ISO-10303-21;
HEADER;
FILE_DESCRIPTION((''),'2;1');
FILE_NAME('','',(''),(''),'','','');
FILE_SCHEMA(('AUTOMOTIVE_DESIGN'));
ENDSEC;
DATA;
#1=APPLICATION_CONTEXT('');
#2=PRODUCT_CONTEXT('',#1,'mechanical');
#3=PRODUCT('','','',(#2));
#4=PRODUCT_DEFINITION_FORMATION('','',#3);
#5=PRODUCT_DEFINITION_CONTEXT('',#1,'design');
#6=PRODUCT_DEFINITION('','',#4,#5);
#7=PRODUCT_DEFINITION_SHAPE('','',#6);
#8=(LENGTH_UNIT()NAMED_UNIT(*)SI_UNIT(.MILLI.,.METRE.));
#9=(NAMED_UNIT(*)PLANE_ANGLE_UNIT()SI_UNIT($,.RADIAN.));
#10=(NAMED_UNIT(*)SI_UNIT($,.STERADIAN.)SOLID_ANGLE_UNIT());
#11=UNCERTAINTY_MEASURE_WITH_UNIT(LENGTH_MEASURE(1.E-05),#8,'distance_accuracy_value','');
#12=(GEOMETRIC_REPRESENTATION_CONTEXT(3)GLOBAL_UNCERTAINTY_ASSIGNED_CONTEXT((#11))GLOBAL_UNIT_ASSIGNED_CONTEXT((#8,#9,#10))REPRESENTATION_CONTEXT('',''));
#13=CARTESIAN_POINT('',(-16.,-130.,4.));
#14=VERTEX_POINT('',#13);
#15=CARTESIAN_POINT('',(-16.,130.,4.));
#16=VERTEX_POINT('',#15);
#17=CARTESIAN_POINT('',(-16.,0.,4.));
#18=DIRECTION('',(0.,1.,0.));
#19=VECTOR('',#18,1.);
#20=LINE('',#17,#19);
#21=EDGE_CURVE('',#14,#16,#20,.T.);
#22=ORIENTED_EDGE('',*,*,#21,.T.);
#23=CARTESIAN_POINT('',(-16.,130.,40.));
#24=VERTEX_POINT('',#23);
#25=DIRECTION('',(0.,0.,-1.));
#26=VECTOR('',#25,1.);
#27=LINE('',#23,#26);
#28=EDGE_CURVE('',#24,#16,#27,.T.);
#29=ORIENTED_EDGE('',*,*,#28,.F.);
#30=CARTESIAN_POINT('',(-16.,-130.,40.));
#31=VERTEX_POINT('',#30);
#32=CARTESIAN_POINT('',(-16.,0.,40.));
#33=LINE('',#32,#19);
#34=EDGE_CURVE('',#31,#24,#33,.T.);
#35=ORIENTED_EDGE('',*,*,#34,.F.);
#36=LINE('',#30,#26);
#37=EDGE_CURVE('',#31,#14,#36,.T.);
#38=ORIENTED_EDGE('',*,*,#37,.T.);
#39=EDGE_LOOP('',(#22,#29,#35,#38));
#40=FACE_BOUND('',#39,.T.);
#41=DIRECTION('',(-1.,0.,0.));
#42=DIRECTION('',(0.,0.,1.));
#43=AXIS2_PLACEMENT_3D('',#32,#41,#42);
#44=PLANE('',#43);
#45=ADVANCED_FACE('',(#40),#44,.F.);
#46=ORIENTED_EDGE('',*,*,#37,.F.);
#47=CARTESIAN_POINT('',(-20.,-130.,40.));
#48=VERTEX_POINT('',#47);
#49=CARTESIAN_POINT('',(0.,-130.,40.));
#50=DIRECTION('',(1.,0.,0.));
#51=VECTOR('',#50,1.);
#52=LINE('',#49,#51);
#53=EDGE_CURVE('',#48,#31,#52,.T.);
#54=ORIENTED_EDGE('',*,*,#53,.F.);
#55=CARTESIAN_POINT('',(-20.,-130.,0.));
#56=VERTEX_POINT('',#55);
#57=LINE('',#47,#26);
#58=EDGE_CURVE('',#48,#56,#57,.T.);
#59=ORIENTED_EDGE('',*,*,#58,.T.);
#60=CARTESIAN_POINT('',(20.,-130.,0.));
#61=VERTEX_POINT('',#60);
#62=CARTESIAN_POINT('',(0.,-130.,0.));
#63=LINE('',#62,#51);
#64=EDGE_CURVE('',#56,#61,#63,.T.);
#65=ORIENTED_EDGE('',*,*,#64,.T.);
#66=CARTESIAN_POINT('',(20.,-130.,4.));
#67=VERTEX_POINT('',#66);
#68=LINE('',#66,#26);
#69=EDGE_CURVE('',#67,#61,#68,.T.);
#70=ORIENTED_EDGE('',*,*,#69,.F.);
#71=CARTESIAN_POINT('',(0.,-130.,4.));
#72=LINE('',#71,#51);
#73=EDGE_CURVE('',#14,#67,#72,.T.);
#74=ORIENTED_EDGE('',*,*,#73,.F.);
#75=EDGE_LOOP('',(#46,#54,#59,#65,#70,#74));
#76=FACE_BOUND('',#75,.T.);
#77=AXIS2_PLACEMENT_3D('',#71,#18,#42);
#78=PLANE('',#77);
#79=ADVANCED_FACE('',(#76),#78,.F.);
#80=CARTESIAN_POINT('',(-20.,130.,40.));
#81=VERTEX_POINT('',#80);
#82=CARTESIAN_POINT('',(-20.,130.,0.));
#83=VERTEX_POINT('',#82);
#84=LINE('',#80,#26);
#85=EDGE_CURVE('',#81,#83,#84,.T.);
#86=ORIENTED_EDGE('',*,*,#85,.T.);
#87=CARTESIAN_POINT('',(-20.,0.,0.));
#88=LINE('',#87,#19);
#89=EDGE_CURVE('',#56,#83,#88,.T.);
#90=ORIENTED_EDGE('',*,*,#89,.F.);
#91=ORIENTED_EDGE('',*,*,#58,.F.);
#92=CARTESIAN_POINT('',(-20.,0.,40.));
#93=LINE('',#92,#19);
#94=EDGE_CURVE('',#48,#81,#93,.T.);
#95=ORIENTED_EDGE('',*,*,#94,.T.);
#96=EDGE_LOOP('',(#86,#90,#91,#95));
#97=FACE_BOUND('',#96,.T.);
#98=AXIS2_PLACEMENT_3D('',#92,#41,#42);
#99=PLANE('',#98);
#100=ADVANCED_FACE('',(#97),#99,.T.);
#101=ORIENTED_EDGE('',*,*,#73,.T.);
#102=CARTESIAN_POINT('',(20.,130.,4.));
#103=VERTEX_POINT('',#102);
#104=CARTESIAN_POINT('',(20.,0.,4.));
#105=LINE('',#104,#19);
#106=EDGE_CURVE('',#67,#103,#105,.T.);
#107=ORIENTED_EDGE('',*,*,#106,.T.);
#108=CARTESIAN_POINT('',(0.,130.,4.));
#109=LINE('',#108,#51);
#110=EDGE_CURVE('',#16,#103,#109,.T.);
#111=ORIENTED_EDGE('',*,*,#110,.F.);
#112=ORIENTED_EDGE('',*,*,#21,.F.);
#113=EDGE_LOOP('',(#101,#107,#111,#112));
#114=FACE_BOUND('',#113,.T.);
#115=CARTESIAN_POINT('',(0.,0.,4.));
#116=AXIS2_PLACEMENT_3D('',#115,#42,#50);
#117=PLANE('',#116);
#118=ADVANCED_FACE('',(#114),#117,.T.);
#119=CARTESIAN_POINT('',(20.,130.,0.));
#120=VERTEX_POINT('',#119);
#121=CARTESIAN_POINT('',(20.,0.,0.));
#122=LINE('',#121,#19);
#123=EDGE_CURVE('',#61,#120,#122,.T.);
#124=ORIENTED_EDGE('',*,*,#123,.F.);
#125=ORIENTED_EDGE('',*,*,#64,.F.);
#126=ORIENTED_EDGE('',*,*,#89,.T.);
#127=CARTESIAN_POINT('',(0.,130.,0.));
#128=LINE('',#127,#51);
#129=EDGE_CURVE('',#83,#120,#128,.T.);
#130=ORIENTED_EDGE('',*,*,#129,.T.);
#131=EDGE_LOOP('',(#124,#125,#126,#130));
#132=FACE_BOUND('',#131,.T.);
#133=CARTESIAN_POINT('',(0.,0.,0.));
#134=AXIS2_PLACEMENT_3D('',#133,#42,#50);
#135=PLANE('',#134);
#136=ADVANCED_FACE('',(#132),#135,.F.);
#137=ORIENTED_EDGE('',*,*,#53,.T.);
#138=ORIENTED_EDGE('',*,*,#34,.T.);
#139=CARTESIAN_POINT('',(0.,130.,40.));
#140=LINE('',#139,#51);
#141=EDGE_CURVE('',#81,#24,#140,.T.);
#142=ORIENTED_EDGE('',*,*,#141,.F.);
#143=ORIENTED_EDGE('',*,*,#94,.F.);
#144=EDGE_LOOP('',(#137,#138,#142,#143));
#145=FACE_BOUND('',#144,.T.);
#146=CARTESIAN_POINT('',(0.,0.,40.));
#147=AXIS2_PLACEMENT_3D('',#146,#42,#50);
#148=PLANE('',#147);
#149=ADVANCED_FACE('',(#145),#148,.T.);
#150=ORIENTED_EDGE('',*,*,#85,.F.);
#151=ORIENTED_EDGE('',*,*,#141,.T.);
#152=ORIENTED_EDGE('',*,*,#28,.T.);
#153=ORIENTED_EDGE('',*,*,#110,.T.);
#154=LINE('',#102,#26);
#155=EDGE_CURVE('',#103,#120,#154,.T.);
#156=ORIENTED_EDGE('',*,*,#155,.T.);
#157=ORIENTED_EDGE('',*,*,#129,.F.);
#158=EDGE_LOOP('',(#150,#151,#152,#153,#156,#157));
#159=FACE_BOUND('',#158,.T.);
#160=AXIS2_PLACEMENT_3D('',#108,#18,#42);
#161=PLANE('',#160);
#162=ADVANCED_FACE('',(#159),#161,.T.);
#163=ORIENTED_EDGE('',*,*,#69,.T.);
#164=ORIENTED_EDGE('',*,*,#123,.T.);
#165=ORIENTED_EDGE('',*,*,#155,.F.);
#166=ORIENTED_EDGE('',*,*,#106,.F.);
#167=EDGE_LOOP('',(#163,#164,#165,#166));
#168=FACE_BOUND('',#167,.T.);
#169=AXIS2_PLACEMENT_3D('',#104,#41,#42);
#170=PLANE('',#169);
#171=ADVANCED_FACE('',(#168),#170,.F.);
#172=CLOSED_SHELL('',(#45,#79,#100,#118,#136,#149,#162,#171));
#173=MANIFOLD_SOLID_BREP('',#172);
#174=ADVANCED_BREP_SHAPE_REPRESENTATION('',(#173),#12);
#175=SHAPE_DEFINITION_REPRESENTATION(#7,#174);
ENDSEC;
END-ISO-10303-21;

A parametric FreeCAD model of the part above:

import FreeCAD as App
import Part
import Sketcher
from FreeCAD import Vector
Q = App.Units.Quantity


def add_polygon(sketch, points):
    """Adds a closed chain of lines whose ends are joined by coincident constraints."""
    first, n = sketch.GeometryCount, len(points)
    for a, b in zip(points, points[1:] + points[:1]):
        sketch.addGeometry(Part.LineSegment(App.Vector(*a, 0), App.Vector(*b, 0)), False)
    for i in range(n):
        sketch.addConstraint(Sketcher.Constraint("Coincident", first + i, 2, first + (i + 1) % n, 1))

doc = App.newDocument("Part")
body = doc.addObject("PartDesign::Body", "Body")

# Sketch on XY plane
sketch1 = doc.addObject("Sketcher::SketchObject", "Sketch")
body.addObject(sketch1)
sketch1.AttachmentSupport = (doc.XY_Plane, [""])
sketch1.MapMode = "FlatFace"
add_polygon(sketch1, [(-16, 130), (-16, -130), (20, -130), (20, 130)])  # lines 0-3
sketch1.addConstraint(Sketcher.Constraint("Vertical", 0))
sketch1.addConstraint(Sketcher.Constraint("Horizontal", 1))
sketch1.addConstraint(Sketcher.Constraint("Vertical", 2))
sketch1.addConstraint(Sketcher.Constraint("Horizontal", 3))
sketch1.addConstraint(Sketcher.Constraint("DistanceX", 1, 1, 1, 2, Q("36 mm")))
sketch1.addConstraint(Sketcher.Constraint("DistanceY", 0, 2, 0, 1, Q("260 mm")))
sketch1.addConstraint(Sketcher.Constraint("DistanceX", 0, 2, -1, 1, Q("16 mm")))
sketch1.addConstraint(Sketcher.Constraint("DistanceY", 0, 2, -1, 1, Q("130 mm")))
pad1 = doc.addObject("PartDesign::Pad", "Pad")
body.addObject(pad1)
pad1.Profile = sketch1
pad1.Length = 4

# Sketch on XY plane
sketch2 = doc.addObject("Sketcher::SketchObject", "Sketch001")
body.addObject(sketch2)
sketch2.AttachmentSupport = (doc.XY_Plane, [""])
sketch2.MapMode = "FlatFace"
add_polygon(sketch2, [(-20, 130), (-20, -130), (-16, -130), (-16, 130)])  # lines 0-3
sketch2.addConstraint(Sketcher.Constraint("Vertical", 0))
sketch2.addConstraint(Sketcher.Constraint("Horizontal", 1))
sketch2.addConstraint(Sketcher.Constraint("Vertical", 2))
sketch2.addConstraint(Sketcher.Constraint("Horizontal", 3))
sketch2.addConstraint(Sketcher.Constraint("DistanceX", 1, 1, 1, 2, Q("4 mm")))
sketch2.addConstraint(Sketcher.Constraint("DistanceY", 0, 2, 0, 1, Q("260 mm")))
sketch2.addConstraint(Sketcher.Constraint("DistanceX", 0, 2, -1, 1, Q("20 mm")))
sketch2.addConstraint(Sketcher.Constraint("DistanceY", 0, 2, -1, 1, Q("130 mm")))
pad2 = doc.addObject("PartDesign::Pad", "Pad001")
body.addObject(pad2)
pad2.Profile = sketch2
pad2.Length = 40

doc.recompute()
